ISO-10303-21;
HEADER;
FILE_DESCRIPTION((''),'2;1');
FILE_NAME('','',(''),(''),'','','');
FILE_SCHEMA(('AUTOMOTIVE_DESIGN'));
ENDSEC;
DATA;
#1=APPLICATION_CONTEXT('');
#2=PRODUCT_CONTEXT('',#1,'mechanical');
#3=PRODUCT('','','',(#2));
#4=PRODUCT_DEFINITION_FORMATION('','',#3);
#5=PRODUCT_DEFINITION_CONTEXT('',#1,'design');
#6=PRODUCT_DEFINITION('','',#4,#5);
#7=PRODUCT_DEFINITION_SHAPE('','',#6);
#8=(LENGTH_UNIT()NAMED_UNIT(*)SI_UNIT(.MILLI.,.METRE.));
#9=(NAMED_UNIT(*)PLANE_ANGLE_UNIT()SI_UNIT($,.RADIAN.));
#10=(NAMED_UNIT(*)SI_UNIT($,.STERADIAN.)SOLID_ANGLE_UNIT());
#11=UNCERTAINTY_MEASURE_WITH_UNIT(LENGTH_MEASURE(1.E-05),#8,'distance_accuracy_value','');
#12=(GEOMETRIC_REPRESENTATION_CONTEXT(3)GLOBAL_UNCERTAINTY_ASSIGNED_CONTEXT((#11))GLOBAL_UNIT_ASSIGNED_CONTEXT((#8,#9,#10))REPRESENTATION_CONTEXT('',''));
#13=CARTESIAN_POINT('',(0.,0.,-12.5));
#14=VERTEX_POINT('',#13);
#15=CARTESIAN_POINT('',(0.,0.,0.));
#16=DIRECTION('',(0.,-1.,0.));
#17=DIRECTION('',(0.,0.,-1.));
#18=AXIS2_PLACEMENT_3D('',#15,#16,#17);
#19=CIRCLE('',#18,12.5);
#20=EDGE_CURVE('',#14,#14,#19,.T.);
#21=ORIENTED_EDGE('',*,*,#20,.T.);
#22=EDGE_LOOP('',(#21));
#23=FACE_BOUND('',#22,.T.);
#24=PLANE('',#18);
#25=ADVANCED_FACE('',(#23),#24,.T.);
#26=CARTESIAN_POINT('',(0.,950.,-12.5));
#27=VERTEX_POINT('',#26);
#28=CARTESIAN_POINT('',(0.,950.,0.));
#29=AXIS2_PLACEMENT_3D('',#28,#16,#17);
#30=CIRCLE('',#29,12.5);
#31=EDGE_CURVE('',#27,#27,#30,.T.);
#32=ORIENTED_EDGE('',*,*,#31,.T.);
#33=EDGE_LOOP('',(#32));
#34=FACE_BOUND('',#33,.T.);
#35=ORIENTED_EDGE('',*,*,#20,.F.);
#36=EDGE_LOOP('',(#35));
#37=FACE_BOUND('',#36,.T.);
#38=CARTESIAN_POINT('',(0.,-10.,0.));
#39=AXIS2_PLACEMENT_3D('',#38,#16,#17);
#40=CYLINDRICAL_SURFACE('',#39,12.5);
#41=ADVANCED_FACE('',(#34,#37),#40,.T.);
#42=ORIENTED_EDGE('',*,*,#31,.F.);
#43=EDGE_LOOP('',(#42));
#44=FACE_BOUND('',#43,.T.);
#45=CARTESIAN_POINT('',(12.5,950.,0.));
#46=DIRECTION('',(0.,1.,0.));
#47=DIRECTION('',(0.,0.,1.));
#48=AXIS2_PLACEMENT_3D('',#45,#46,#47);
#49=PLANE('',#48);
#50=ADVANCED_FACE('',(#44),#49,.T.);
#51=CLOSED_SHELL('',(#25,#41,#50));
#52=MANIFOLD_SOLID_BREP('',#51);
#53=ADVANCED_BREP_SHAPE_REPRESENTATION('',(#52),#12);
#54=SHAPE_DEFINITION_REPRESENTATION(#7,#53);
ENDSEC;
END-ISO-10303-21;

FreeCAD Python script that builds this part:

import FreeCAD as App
import Part
import Sketcher

V = App.Vector


def add_polygon(sketch, points):
    """Adds a closed chain of lines whose ends are joined by coincident constraints."""
    first, n = sketch.GeometryCount, len(points)
    for a, b in zip(points, points[1:] + points[:1]):
        sketch.addGeometry(Part.LineSegment(App.Vector(*a, 0), App.Vector(*b, 0)), False)
    for i in range(n):
        sketch.addConstraint(Sketcher.Constraint("Coincident", first + i, 2, first + (i + 1) % n, 1))

doc = App.newDocument("Part")
body = doc.addObject("PartDesign::Body", "Body")

sketch1 = body.newObject("Sketcher::SketchObject", "Sketch")
sketch1.AttachmentSupport = (doc.getObject("XY_Plane"), [""])
sketch1.MapMode = "FlatFace"
add_polygon(sketch1, [(0, 950), (0, 0), (12.5, 0), (12.5, 950)])
sketch1.addConstraint(Sketcher.Constraint("Vertical", 0))
sketch1.addConstraint(Sketcher.Constraint("Horizontal", 1))
sketch1.addConstraint(Sketcher.Constraint("Vertical", 2))
sketch1.addConstraint(Sketcher.Constraint("Horizontal", 3))
sketch1.addConstraint(Sketcher.Constraint("Coincident", 0, 2, -1, 1))
sketch1.addConstraint(Sketcher.Constraint("DistanceY", 0, 2, 0, 1, 950.0))
sketch1.addConstraint(Sketcher.Constraint("DistanceX", 1, 1, 1, 2, 12.5))
revolution = body.newObject("PartDesign::Revolution", "Revolution")
revolution.Profile = sketch1
revolution.ReferenceAxis = (sketch1, ["V_Axis"])
revolution.Angle = 360

doc.recompute()
